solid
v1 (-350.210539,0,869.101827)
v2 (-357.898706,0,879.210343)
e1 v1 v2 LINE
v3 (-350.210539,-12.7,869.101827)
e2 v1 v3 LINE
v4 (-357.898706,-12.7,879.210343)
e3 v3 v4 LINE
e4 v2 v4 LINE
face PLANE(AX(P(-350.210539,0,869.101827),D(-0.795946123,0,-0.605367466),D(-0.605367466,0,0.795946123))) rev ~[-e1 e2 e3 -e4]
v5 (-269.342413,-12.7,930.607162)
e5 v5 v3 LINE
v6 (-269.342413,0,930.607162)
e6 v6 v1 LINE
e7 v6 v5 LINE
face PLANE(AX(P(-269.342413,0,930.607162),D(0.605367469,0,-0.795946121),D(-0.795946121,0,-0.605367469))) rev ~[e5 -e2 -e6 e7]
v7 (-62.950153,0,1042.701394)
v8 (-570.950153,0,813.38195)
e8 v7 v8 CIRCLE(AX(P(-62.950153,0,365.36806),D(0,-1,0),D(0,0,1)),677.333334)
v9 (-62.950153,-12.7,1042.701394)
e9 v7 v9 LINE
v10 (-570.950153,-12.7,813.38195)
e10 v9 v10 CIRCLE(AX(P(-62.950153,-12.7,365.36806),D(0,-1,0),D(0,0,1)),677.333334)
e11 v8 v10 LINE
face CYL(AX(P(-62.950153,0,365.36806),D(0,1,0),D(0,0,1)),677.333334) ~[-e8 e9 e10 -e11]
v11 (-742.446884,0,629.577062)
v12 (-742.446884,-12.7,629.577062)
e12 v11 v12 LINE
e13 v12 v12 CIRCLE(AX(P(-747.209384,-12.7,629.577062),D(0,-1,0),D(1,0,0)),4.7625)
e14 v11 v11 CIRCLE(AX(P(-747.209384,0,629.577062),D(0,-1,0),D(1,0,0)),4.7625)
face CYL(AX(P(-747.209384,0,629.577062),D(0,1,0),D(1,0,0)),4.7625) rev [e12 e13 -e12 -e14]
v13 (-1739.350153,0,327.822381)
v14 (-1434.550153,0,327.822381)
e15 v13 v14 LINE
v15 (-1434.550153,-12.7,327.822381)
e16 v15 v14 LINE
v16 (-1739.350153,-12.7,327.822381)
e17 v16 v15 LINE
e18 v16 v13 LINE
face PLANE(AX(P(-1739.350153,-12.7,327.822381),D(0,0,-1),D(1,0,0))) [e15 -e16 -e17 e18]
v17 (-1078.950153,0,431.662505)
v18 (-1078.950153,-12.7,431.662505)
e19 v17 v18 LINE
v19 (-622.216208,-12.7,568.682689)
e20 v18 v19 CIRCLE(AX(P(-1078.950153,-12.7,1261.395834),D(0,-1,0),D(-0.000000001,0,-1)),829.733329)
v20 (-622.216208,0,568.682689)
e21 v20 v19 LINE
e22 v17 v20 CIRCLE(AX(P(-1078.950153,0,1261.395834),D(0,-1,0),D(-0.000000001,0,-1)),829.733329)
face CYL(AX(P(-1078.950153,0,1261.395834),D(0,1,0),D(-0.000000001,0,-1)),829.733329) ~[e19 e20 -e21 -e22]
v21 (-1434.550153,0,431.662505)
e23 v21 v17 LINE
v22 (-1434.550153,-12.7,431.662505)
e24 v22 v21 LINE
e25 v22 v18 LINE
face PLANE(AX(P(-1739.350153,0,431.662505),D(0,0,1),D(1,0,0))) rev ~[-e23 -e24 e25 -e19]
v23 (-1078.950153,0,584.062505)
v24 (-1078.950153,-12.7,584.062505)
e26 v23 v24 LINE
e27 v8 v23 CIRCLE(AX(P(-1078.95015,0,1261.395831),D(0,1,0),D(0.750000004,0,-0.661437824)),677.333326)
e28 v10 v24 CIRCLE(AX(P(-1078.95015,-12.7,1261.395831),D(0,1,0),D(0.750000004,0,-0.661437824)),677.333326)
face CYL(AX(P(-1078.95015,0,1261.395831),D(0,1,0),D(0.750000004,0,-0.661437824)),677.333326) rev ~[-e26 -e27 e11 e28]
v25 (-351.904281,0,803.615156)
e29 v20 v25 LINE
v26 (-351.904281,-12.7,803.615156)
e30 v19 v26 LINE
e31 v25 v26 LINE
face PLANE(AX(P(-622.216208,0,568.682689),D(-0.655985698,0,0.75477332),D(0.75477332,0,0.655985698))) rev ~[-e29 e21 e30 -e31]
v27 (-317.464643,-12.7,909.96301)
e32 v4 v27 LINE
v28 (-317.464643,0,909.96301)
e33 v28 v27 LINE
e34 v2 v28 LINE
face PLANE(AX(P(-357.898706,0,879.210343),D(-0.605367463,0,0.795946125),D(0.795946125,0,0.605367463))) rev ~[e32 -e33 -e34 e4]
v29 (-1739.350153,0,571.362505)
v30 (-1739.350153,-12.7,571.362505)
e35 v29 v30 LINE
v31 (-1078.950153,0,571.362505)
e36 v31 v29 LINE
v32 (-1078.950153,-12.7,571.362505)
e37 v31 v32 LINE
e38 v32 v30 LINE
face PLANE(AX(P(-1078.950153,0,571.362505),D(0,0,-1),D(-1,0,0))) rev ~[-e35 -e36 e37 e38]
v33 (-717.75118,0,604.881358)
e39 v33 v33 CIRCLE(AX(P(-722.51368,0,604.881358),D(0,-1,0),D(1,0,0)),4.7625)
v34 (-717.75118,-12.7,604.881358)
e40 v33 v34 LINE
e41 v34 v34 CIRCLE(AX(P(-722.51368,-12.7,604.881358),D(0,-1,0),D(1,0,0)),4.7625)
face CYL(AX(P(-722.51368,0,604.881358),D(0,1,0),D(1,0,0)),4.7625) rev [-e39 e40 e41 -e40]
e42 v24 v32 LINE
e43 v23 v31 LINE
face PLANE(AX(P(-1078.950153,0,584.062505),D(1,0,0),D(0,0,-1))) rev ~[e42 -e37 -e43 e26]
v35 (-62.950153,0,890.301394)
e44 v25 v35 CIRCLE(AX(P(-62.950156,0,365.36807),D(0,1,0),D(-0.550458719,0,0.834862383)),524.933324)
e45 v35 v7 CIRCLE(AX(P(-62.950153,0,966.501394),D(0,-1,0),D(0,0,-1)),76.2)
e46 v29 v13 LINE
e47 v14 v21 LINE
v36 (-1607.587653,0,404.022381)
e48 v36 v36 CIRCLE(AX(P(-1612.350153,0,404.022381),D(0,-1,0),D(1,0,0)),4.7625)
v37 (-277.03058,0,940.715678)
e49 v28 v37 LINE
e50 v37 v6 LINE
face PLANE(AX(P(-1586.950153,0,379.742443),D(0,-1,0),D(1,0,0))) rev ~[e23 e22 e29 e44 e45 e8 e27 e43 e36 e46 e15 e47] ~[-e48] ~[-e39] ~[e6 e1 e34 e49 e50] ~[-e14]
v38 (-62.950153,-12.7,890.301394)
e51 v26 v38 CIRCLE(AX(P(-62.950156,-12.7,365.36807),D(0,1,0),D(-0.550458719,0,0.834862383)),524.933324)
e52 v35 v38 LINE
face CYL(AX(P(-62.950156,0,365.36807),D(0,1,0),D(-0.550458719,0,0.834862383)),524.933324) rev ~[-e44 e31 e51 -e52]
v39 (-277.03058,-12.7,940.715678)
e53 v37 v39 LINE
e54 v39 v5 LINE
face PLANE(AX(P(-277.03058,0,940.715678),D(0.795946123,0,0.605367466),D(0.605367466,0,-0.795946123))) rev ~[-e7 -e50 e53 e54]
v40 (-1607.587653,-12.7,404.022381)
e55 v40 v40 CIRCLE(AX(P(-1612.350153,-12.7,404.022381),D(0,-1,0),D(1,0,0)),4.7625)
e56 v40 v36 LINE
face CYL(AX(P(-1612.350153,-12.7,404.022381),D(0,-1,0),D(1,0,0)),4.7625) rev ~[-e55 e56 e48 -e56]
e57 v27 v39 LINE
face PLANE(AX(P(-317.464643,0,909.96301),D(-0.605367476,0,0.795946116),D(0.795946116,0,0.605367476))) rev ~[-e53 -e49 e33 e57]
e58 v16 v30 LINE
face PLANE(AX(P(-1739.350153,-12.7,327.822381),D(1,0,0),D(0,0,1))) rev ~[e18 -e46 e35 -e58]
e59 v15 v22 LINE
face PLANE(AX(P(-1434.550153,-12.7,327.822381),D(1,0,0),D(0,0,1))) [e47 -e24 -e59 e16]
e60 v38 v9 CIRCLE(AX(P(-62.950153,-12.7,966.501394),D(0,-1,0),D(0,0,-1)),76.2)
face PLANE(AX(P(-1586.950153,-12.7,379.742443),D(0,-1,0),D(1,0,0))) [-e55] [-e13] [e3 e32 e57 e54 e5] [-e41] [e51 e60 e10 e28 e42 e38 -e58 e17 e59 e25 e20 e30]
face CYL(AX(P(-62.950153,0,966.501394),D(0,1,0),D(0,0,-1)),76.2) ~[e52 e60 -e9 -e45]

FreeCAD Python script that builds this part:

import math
import FreeCAD as App
import Part
import Sketcher

V = App.Vector
Q = App.Units.Quantity

doc = App.newDocument("Part")
params = doc.addObject("Spreadsheet::Sheet", "Params")
for row, (alias, value) in enumerate([
    ("sketch1_radius", "3 in"),
    ("sketch1_width", "26 in"),
    ("sketch1_length", "2 in"),
    ("sketch1_diameter", "0.375 in"),
    ("sketch1_height", "0.5 in"),
    ("pad1_length", "0.5 in"),
    ("sketch2_width", "12 in"),
    ("sketch2_diameter", "0.375 in"),
    ("pad2_length", "0.5 in"),
], start=1):
    params.set(f"A{row}", alias)
    params.set(f"B{row}", "=" + value)
    params.setAlias(f"B{row}", alias)

body = doc.addObject("PartDesign::Body", "Body")

# Sketch on XZ plane
sketch1 = doc.addObject("Sketcher::SketchObject", "Sketch")
body.addObject(sketch1)
sketch1.AttachmentSupport = (doc.XZ_Plane, [""])
sketch1.MapMode = "FlatFace"
sketch1.addGeometry(Part.ArcOfCircle(Part.Circle(V(-1078.95015, 1261.395831, 0), V(0, 0, 1), 677.333326), math.radians(-90), math.radians(-41.409622)), False)
sketch1.addGeometry(Part.LineSegment(V(-1078.950153, 584.062505, 0), V(-1078.950153, 571.362505, 0)), False)
sketch1.addGeometry(Part.LineSegment(V(-1078.950153, 571.362505, 0), V(-1739.350153, 571.362505, 0)), False)
sketch1.addGeometry(Part.LineSegment(V(-1739.350153, 571.362505, 0), V(-1739.350153, 431.662505, 0)), False)
sketch1.addGeometry(Part.LineSegment(V(-1739.350153, 431.662505, 0), V(-1078.950153, 431.662505, 0)), False)
sketch1.addGeometry(Part.ArcOfCircle(Part.Circle(V(-1078.950153, 1261.395834, 0), V(0, 0, 1), 829.733329), math.radians(-90), math.radians(-56.601511)), False)
sketch1.addGeometry(Part.LineSegment(V(-622.216208, 568.682689, 0), V(-351.904281, 803.615156, 0)), False)
sketch1.addGeometry(Part.ArcOfCircle(Part.Circle(V(-62.950156, 365.36807, 0), V(0, 0, 1), 524.933324), math.radians(90), math.radians(123.398489)), False)
sketch1.addGeometry(Part.ArcOfCircle(Part.Circle(V(-62.950153, 966.501394, 0), V(0, 0, 1), 76.2), math.radians(-90), math.radians(90)), False)
sketch1.addGeometry(Part.ArcOfCircle(Part.Circle(V(-62.950153, 365.36806, 0), V(0, 0, 1), 677.333334), math.radians(90), math.radians(138.590378)), False)
sketch1.addGeometry(Part.Circle(V(-722.51368, 604.881358, 0), V(0, 0, 1), 4.7625), False)
sketch1.addGeometry(Part.Circle(V(-747.209384, 629.577062, 0), V(0, 0, 1), 4.7625), False)
sketch1.addGeometry(Part.LineSegment(V(-350.210539, 869.101827, 0), V(-357.898706, 879.210343, 0)), False)
sketch1.addGeometry(Part.LineSegment(V(-357.898706, 879.210343, 0), V(-317.464643, 909.96301, 0)), False)
sketch1.addGeometry(Part.LineSegment(V(-317.464643, 909.96301, 0), V(-277.03058, 940.715678, 0)), False)
sketch1.addGeometry(Part.LineSegment(V(-277.03058, 940.715678, 0), V(-269.342413, 930.607162, 0)), False)
sketch1.addGeometry(Part.LineSegment(V(-269.342413, 930.607162, 0), V(-350.210539, 869.101827, 0)), False)
sketch1.addConstraint(Sketcher.Constraint("Coincident", 0, 1, 1, 1))
sketch1.addConstraint(Sketcher.Constraint("Coincident", 1, 2, 2, 1))
sketch1.addConstraint(Sketcher.Constraint("Coincident", 2, 2, 3, 1))
sketch1.addConstraint(Sketcher.Constraint("Coincident", 3, 2, 4, 1))
sketch1.addConstraint(Sketcher.Constraint("Tangent", 4, 2, 5, 1))
sketch1.addConstraint(Sketcher.Constraint("Coincident", 5, 2, 6, 1))
sketch1.addConstraint(Sketcher.Constraint("Coincident", 6, 2, 7, 2))
sketch1.addConstraint(Sketcher.Constraint("Tangent", 7, 1, 8, 1))
sketch1.addConstraint(Sketcher.Constraint("Tangent", 8, 2, 9, 1))
sketch1.addConstraint(Sketcher.Constraint("Tangent", 9, 2, 0, 2))
sketch1.addConstraint(Sketcher.Constraint("Coincident", 12, 2, 13, 1))
sketch1.addConstraint(Sketcher.Constraint("Coincident", 13, 2, 14, 1))
sketch1.addConstraint(Sketcher.Constraint("Coincident", 14, 2, 15, 1))
sketch1.addConstraint(Sketcher.Constraint("Coincident", 15, 2, 16, 1))
sketch1.addConstraint(Sketcher.Constraint("Coincident", 16, 2, 12, 1))
sketch1.addConstraint(Sketcher.Constraint("Vertical", 1))
sketch1.addConstraint(Sketcher.Constraint("Horizontal", 2))
sketch1.addConstraint(Sketcher.Constraint("Vertical", 3))
sketch1.addConstraint(Sketcher.Constraint("Horizontal", 4))
sketch1.addConstraint(Sketcher.Constraint("Coincident", 5, 3, 0, 3))
sketch1.addConstraint(Sketcher.Constraint("Equal", 10, 11))
sketch1.addConstraint(Sketcher.Constraint("Perpendicular", 12, 13))
sketch1.addConstraint(Sketcher.Constraint("Parallel", 13, 14))
sketch1.addConstraint(Sketcher.Constraint("Perpendicular", 14, 15))
sketch1.addConstraint(Sketcher.Constraint("Perpendicular", 15, 16))
sketch1.addConstraint(Sketcher.Constraint("Vertical", 8, 3, 9, 3))
sketch1.addConstraint(Sketcher.Constraint("Vertical", 1, 2, 4, 2))
sketch1.addConstraint(Sketcher.Constraint("Equal", 13, 14))
sketch1.addConstraint(Sketcher.Constraint("Radius", 8, Q("3 in")))
sketch1.addConstraint(Sketcher.Constraint("DistanceX", 2, 2, 2, 1, Q("26 in")))
sketch1.addConstraint(Sketcher.Constraint("Distance", 13, Q("2 in")))
sketch1.addConstraint(Sketcher.Constraint("Diameter", 10, Q("0.375 in")))
sketch1.addConstraint(Sketcher.Constraint("DistanceY", 1, 2, 1, 1, Q("0.5 in")))
sketch1.addConstraint(Sketcher.Constraint("DistanceY", 3, 2, 3, 1, Q("5.5 in")))
sketch1.addConstraint(Sketcher.Constraint("DistanceX", 5, 3, 7, 3, Q("39.9999999 in")))
sketch1.addConstraint(Sketcher.Constraint("DistanceX", 0, 3, 8, 3, Q("39.9999999 in")))
sketch1.addConstraint(Sketcher.Constraint("Distance", 12, Q("0.5 in")))
sketch1.addConstraint(Sketcher.Constraint("Radius", 5, Q("829.733329 mm")))
sketch1.addConstraint(Sketcher.Constraint("Radius", 7, Q("524.933324 mm")))
sketch1.addConstraint(Sketcher.Constraint("Radius", 9, Q("677.333334 mm")))
sketch1.addConstraint(Sketcher.Constraint("DistanceY", 9, 3, 10, 3, Q("239.513298 mm")))
sketch1.addConstraint(Sketcher.Constraint("DistanceX", 10, 3, 6, 2, Q("370.609399 mm")))
sketch1.addConstraint(Sketcher.Constraint("DistanceX", 6, 2, 14, 2, Q("74.873701 mm")))
sketch1.addConstraint(Sketcher.Constraint("Distance", 6, Q("358.136569 mm")))
sketch1.addConstraint(Sketcher.Constraint("DistanceX", 0, 3, -1, 1, Q("1078.95015 mm")))
sketch1.addConstraint(Sketcher.Constraint("DistanceY", -1, 1, 0, 3, Q("1261.395831 mm")))
sketch1.addConstraint(Sketcher.Constraint("DistanceX", 10, 3, -1, 1, Q("722.51368 mm")))
sketch1.addConstraint(Sketcher.Constraint("DistanceY", -1, 1, 11, 3, Q("629.577062 mm")))
sketch1.addConstraint(Sketcher.Constraint("DistanceY", -1, 1, 13, 2, Q("909.96301 mm")))
sketch1.addConstraint(Sketcher.Constraint("DistanceY", -1, 1, 14, 2, Q("940.715678 mm")))
sketch1.addConstraint(Sketcher.Constraint("DistanceX", 5, 3, 11, 3, Q("331.740769 mm")))
sketch1.setExpression("Constraints[28]", "Params.sketch1_radius")
sketch1.setExpression("Constraints[29]", "Params.sketch1_width")
sketch1.setExpression("Constraints[30]", "Params.sketch1_length")
sketch1.setExpression("Constraints[31]", "Params.sketch1_diameter")
sketch1.setExpression("Constraints[32]", "Params.sketch1_height")
pad1 = doc.addObject("PartDesign::Pad", "Pad")
body.addObject(pad1)
pad1.Profile = sketch1
pad1.setExpression("Length", "Params.pad1_length")

# Sketch on XZ plane
sketch2 = doc.addObject("Sketcher::SketchObject", "Sketch001")
body.addObject(sketch2)
sketch2.AttachmentSupport = (doc.XZ_Plane, [""])
sketch2.MapMode = "FlatFace"
sketch2.AttachmentOffset = App.Placement(V(0, 0, 0.5 * 25.4), App.Rotation())
sketch2.addGeometry(Part.LineSegment(V(-1739.350153, 431.662505, 0), V(-1739.350153, 327.822381, 0)), False)
sketch2.addGeometry(Part.LineSegment(V(-1739.350153, 327.822381, 0), V(-1434.550153, 327.822381, 0)), False)
sketch2.addGeometry(Part.LineSegment(V(-1434.550153, 327.822381, 0), V(-1434.550153, 431.662505, 0)), False)
sketch2.addGeometry(Part.LineSegment(V(-1434.550153, 431.662505, 0), V(-1739.350153, 431.662505, 0)), False)
sketch2.addGeometry(Part.Circle(V(-1612.350153, 404.022381, 0), V(0, 0, 1), 4.7625), False)
sketch2.addConstraint(Sketcher.Constraint("Coincident", 0, 2, 1, 1))
sketch2.addConstraint(Sketcher.Constraint("Coincident", 1, 2, 2, 1))
sketch2.addConstraint(Sketcher.Constraint("Coincident", 2, 2, 3, 1))
sketch2.addConstraint(Sketcher.Constraint("Coincident", 3, 2, 0, 1))
sketch2.addConstraint(Sketcher.Constraint("Vertical", 0))
sketch2.addConstraint(Sketcher.Constraint("Horizontal", 1))
sketch2.addConstraint(Sketcher.Constraint("Vertical", 2))
sketch2.addConstraint(Sketcher.Constraint("Horizontal", 3))
sketch2.addConstraint(Sketcher.Constraint("DistanceX", 1, 1, 1, 2, Q("12 in")))
sketch2.addConstraint(Sketcher.Constraint("Diameter", 4, Q("0.375 in")))
sketch2.addConstraint(Sketcher.Constraint("DistanceX", 0, 2, 4, 3, Q("5 in")))
sketch2.addConstraint(Sketcher.Constraint("DistanceY", 0, 2, 4, 3, Q("3 in")))
sketch2.addConstraint(Sketcher.Constraint("DistanceY", 0, 2, 0, 1, Q("103.840124 mm")))
sketch2.addConstraint(Sketcher.Constraint("DistanceY", -1, 1, 4, 3, Q("404.022381 mm")))
sketch2.addConstraint(Sketcher.Constraint("DistanceX", 4, 3, -1, 1, Q("1612.350153 mm")))
sketch2.setExpression("Constraints[8]", "Params.sketch2_width")
sketch2.setExpression("Constraints[9]", "Params.sketch2_diameter")
pad2 = doc.addObject("PartDesign::Pad", "Pad001")
body.addObject(pad2)
pad2.Profile = sketch2
pad2.setExpression("Length", "Params.pad2_length")
pad2.Reversed = True

doc.recompute()
